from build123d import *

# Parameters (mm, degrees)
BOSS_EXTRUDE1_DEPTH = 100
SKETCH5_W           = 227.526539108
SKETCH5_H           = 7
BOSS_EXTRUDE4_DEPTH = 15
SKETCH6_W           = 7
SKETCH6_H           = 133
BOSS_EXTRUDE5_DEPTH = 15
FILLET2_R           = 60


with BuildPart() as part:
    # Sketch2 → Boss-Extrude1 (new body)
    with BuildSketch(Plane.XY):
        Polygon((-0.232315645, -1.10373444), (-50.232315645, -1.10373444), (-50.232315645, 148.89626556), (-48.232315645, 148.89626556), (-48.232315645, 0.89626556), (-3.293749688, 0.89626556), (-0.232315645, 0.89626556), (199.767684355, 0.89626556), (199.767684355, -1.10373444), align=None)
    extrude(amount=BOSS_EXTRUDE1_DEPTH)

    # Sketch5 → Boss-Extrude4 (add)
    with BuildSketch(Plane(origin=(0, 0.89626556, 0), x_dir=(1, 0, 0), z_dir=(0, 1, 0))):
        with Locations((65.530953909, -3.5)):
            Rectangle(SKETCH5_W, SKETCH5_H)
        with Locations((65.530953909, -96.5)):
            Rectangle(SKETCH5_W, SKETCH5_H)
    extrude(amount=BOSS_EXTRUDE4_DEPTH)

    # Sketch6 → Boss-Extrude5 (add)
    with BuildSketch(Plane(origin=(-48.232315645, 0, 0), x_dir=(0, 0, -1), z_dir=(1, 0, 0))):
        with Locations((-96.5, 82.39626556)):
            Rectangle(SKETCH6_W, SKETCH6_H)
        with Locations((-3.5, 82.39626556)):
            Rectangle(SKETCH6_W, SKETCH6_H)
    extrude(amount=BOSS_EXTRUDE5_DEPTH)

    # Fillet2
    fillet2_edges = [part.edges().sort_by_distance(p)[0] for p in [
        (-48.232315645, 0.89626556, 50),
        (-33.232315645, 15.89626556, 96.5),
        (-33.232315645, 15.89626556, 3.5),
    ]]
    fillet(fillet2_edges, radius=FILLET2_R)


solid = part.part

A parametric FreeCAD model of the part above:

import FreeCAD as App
import Part
import Sketcher
from FreeCAD import Vector


def edges_at(feature, points):
    """Names of the edges that pass closest to the given points."""
    edges = feature.Shape.Edges
    near = lambda p: min(range(len(edges)), key=lambda i: edges[i].distToShape(Part.Vertex(*p))[0])
    return sorted({f"Edge{near(p) + 1}" for p in points})

doc = App.newDocument("Part")
body = doc.addObject("PartDesign::Body", "Body")

sketch1 = body.newObject("Sketcher::SketchObject", "Sketch")
sketch1.AttachmentSupport = (doc.getObject("XY_Plane"), [""])
sketch1.MapMode = "FlatFace"
sketch1.addGeometry(Part.LineSegment(Vector(-50.2, -1.1, 0), Vector(199.8, -1.1, 0)), False)
sketch1.addGeometry(Part.LineSegment(Vector(199.8, -1.1, 0), Vector(199.8, 0.9, 0)), False)
sketch1.addGeometry(Part.LineSegment(Vector(199.8, 0.9, 0), Vector(-48.2, 0.9, 0)), False)
sketch1.addGeometry(Part.LineSegment(Vector(-48.2, 0.9, 0), Vector(-48.2, 148.9, 0)), False)
sketch1.addGeometry(Part.LineSegment(Vector(-48.2, 148.9, 0), Vector(-50.2, 148.9, 0)), False)
sketch1.addGeometry(Part.LineSegment(Vector(-50.2, 148.9, 0), Vector(-50.2, -1.1, 0)), False)
sketch1.addConstraint(Sketcher.Constraint("Coincident", 0, 2, 1, 1))
sketch1.addConstraint(Sketcher.Constraint("Coincident", 1, 2, 2, 1))
sketch1.addConstraint(Sketcher.Constraint("Coincident", 2, 2, 3, 1))
sketch1.addConstraint(Sketcher.Constraint("Coincident", 3, 2, 4, 1))
sketch1.addConstraint(Sketcher.Constraint("Coincident", 4, 2, 5, 1))
sketch1.addConstraint(Sketcher.Constraint("Coincident", 5, 2, 0, 1))
sketch1.addConstraint(Sketcher.Constraint("Horizontal", 0))
sketch1.addConstraint(Sketcher.Constraint("Vertical", 1))
sketch1.addConstraint(Sketcher.Constraint("Horizontal", 2))
sketch1.addConstraint(Sketcher.Constraint("Vertical", 3))
sketch1.addConstraint(Sketcher.Constraint("Horizontal", 4))
sketch1.addConstraint(Sketcher.Constraint("Vertical", 5))
sketch1.addConstraint(Sketcher.Constraint("Equal", 4, 1))
sketch1.addConstraint(Sketcher.Constraint("DistanceX", 0, 1, 0, 2, 250.0))
sketch1.addConstraint(Sketcher.Constraint("DistanceX", 2, 2, 2, 1, 248.0))
sketch1.addConstraint(Sketcher.Constraint("DistanceY", 3, 1, 3, 2, 148.0))
sketch1.addConstraint(Sketcher.Constraint("DistanceX", -1, 1, 0, 2, 199.767684))
sketch1.addConstraint(Sketcher.Constraint("DistanceY", 0, 2, -1, 1, 1.103734))
pad1 = body.newObject("PartDesign::Pad", "Pad")
pad1.Profile = sketch1
pad1.Length = 100

sketch2 = body.newObject("Sketcher::SketchObject", "Sketch001")
sketch2.AttachmentSupport = (doc.getObject("XZ_Plane"), [""])
sketch2.MapMode = "FlatFace"
sketch2.AttachmentOffset = App.Placement(Vector(0, 0, -0.896266), App.Rotation())
sketch2.addGeometry(Part.LineSegment(Vector(-48, 0, 0), Vector(-48, 7, 0)), False)
sketch2.addGeometry(Part.LineSegment(Vector(-48, 7, 0), Vector(179, 7, 0)), False)
sketch2.addGeometry(Part.LineSegment(Vector(179, 7, 0), Vector(179, 0, 0)), False)
sketch2.addGeometry(Part.LineSegment(Vector(179, 0, 0), Vector(-48, 0, 0)), False)
sketch2.addGeometry(Part.LineSegment(Vector(-48, 93, 0), Vector(-48, 100, 0)), False)
sketch2.addGeometry(Part.LineSegment(Vector(-48, 100, 0), Vector(179, 100, 0)), False)
sketch2.addGeometry(Part.LineSegment(Vector(179, 100, 0), Vector(179, 93, 0)), False)
sketch2.addGeometry(Part.LineSegment(Vector(179, 93, 0), Vector(-48, 93, 0)), False)
sketch2.addConstraint(Sketcher.Constraint("Coincident", 0, 2, 1, 1))
sketch2.addConstraint(Sketcher.Constraint("Coincident", 1, 2, 2, 1))
sketch2.addConstraint(Sketcher.Constraint("Coincident", 2, 2, 3, 1))
sketch2.addConstraint(Sketcher.Constraint("Coincident", 3, 2, 0, 1))
sketch2.addConstraint(Sketcher.Constraint("Coincident", 4, 2, 5, 1))
sketch2.addConstraint(Sketcher.Constraint("Coincident", 5, 2, 6, 1))
sketch2.addConstraint(Sketcher.Constraint("Coincident", 6, 2, 7, 1))
sketch2.addConstraint(Sketcher.Constraint("Coincident", 7, 2, 4, 1))
sketch2.addConstraint(Sketcher.Constraint("Vertical", 0))
sketch2.addConstraint(Sketcher.Constraint("Horizontal", 1))
sketch2.addConstraint(Sketcher.Constraint("Vertical", 2))
sketch2.addConstraint(Sketcher.Constraint("Horizontal", 3))
sketch2.addConstraint(Sketcher.Constraint("Vertical", 4))
sketch2.addConstraint(Sketcher.Constraint("Horizontal", 5))
sketch2.addConstraint(Sketcher.Constraint("Vertical", 6))
sketch2.addConstraint(Sketcher.Constraint("Horizontal", 7))
sketch2.addConstraint(Sketcher.Constraint("PointOnObject", 2, 2, -1))
sketch2.addConstraint(Sketcher.Constraint("Vertical", 3, 2, 4, 2))
sketch2.addConstraint(Sketcher.Constraint("Vertical", 2, 2, 5, 2))
sketch2.addConstraint(Sketcher.Constraint("Equal", 2, 4))
sketch2.addConstraint(Sketcher.Constraint("DistanceY", 0, 1, 0, 2, 7.0))
sketch2.addConstraint(Sketcher.Constraint("DistanceY", -1, 1, 4, 2, 100.0))
sketch2.addConstraint(Sketcher.Constraint("DistanceX", 1, 1, 1, 2, 227.526539))
sketch2.addConstraint(Sketcher.Constraint("DistanceX", 0, 2, -1, 1, 48.232316))
pad2 = body.newObject("PartDesign::Pad", "Pad001")
pad2.Profile = sketch2
pad2.Length = 15
pad2.Reversed = True

sketch3 = body.newObject("Sketcher::SketchObject", "Sketch002")
sketch3.AttachmentSupport = (doc.getObject("YZ_Plane"), [""])
sketch3.MapMode = "FlatFace"
sketch3.AttachmentOffset = App.Placement(Vector(0, 0, -48.232316), App.Rotation())
sketch3.addGeometry(Part.LineSegment(Vector(149, 100, 0), Vector(16, 100, 0)), False)
sketch3.addGeometry(Part.LineSegment(Vector(16, 100, 0), Vector(16, 93, 0)), False)
sketch3.addGeometry(Part.LineSegment(Vector(16, 93, 0), Vector(149, 93, 0)), False)
sketch3.addGeometry(Part.LineSegment(Vector(149, 93, 0), Vector(149, 100, 0)), False)
sketch3.addGeometry(Part.LineSegment(Vector(149, 7, 0), Vector(16, 7, 0)), False)
sketch3.addGeometry(Part.LineSegment(Vector(16, 7, 0), Vector(16, 0, 0)), False)
sketch3.addGeometry(Part.LineSegment(Vector(16, 0, 0), Vector(149, 0, 0)), False)
sketch3.addGeometry(Part.LineSegment(Vector(149, 0, 0), Vector(149, 7, 0)), False)
sketch3.addConstraint(Sketcher.Constraint("Coincident", 0, 2, 1, 1))
sketch3.addConstraint(Sketcher.Constraint("Coincident", 1, 2, 2, 1))
sketch3.addConstraint(Sketcher.Constraint("Coincident", 2, 2, 3, 1))
sketch3.addConstraint(Sketcher.Constraint("Coincident", 3, 2, 0, 1))
sketch3.addConstraint(Sketcher.Constraint("Coincident", 4, 2, 5, 1))
sketch3.addConstraint(Sketcher.Constraint("Coincident", 5, 2, 6, 1))
sketch3.addConstraint(Sketcher.Constraint("Coincident", 6, 2, 7, 1))
sketch3.addConstraint(Sketcher.Constraint("Coincident", 7, 2, 4, 1))
sketch3.addConstraint(Sketcher.Constraint("Horizontal", 0))
sketch3.addConstraint(Sketcher.Constraint("Vertical", 1))
sketch3.addConstraint(Sketcher.Constraint("Horizontal", 2))
sketch3.addConstraint(Sketcher.Constraint("Vertical", 3))
sketch3.addConstraint(Sketcher.Constraint("Horizontal", 4))
sketch3.addConstraint(Sketcher.Constraint("Vertical", 5))
sketch3.addConstraint(Sketcher.Constraint("Horizontal", 6))
sketch3.addConstraint(Sketcher.Constraint("Vertical", 7))
sketch3.addConstraint(Sketcher.Constraint("PointOnObject", 5, 2, -1))
sketch3.addConstraint(Sketcher.Constraint("Vertical", 1, 2, 4, 2))
sketch3.addConstraint(Sketcher.Constraint("Vertical", 3, 2, 6, 2))
sketch3.addConstraint(Sketcher.Constraint("Equal", 3, 5))
sketch3.addConstraint(Sketcher.Constraint("DistanceX", 0, 2, 0, 1, 133.0))
sketch3.addConstraint(Sketcher.Constraint("DistanceY", 1, 2, 1, 1, 7.0))
sketch3.addConstraint(Sketcher.Constraint("DistanceY", -1, 1, 0, 2, 100.0))
sketch3.addConstraint(Sketcher.Constraint("DistanceX", -1, 1, 0, 2, 15.896266))
pad3 = body.newObject("PartDesign::Pad", "Pad002")
pad3.Profile = sketch3
pad3.Length = 15
doc.recompute()

fillet = body.newObject("PartDesign::Fillet", "Fillet")
fillet.Base = (pad3, edges_at(pad3, [(-48.232, 0.896, 50), (-33.232, 15.896, 96.5), (-33.232, 15.896, 3.5)]))
fillet.Radius = 60

doc.recompute()
